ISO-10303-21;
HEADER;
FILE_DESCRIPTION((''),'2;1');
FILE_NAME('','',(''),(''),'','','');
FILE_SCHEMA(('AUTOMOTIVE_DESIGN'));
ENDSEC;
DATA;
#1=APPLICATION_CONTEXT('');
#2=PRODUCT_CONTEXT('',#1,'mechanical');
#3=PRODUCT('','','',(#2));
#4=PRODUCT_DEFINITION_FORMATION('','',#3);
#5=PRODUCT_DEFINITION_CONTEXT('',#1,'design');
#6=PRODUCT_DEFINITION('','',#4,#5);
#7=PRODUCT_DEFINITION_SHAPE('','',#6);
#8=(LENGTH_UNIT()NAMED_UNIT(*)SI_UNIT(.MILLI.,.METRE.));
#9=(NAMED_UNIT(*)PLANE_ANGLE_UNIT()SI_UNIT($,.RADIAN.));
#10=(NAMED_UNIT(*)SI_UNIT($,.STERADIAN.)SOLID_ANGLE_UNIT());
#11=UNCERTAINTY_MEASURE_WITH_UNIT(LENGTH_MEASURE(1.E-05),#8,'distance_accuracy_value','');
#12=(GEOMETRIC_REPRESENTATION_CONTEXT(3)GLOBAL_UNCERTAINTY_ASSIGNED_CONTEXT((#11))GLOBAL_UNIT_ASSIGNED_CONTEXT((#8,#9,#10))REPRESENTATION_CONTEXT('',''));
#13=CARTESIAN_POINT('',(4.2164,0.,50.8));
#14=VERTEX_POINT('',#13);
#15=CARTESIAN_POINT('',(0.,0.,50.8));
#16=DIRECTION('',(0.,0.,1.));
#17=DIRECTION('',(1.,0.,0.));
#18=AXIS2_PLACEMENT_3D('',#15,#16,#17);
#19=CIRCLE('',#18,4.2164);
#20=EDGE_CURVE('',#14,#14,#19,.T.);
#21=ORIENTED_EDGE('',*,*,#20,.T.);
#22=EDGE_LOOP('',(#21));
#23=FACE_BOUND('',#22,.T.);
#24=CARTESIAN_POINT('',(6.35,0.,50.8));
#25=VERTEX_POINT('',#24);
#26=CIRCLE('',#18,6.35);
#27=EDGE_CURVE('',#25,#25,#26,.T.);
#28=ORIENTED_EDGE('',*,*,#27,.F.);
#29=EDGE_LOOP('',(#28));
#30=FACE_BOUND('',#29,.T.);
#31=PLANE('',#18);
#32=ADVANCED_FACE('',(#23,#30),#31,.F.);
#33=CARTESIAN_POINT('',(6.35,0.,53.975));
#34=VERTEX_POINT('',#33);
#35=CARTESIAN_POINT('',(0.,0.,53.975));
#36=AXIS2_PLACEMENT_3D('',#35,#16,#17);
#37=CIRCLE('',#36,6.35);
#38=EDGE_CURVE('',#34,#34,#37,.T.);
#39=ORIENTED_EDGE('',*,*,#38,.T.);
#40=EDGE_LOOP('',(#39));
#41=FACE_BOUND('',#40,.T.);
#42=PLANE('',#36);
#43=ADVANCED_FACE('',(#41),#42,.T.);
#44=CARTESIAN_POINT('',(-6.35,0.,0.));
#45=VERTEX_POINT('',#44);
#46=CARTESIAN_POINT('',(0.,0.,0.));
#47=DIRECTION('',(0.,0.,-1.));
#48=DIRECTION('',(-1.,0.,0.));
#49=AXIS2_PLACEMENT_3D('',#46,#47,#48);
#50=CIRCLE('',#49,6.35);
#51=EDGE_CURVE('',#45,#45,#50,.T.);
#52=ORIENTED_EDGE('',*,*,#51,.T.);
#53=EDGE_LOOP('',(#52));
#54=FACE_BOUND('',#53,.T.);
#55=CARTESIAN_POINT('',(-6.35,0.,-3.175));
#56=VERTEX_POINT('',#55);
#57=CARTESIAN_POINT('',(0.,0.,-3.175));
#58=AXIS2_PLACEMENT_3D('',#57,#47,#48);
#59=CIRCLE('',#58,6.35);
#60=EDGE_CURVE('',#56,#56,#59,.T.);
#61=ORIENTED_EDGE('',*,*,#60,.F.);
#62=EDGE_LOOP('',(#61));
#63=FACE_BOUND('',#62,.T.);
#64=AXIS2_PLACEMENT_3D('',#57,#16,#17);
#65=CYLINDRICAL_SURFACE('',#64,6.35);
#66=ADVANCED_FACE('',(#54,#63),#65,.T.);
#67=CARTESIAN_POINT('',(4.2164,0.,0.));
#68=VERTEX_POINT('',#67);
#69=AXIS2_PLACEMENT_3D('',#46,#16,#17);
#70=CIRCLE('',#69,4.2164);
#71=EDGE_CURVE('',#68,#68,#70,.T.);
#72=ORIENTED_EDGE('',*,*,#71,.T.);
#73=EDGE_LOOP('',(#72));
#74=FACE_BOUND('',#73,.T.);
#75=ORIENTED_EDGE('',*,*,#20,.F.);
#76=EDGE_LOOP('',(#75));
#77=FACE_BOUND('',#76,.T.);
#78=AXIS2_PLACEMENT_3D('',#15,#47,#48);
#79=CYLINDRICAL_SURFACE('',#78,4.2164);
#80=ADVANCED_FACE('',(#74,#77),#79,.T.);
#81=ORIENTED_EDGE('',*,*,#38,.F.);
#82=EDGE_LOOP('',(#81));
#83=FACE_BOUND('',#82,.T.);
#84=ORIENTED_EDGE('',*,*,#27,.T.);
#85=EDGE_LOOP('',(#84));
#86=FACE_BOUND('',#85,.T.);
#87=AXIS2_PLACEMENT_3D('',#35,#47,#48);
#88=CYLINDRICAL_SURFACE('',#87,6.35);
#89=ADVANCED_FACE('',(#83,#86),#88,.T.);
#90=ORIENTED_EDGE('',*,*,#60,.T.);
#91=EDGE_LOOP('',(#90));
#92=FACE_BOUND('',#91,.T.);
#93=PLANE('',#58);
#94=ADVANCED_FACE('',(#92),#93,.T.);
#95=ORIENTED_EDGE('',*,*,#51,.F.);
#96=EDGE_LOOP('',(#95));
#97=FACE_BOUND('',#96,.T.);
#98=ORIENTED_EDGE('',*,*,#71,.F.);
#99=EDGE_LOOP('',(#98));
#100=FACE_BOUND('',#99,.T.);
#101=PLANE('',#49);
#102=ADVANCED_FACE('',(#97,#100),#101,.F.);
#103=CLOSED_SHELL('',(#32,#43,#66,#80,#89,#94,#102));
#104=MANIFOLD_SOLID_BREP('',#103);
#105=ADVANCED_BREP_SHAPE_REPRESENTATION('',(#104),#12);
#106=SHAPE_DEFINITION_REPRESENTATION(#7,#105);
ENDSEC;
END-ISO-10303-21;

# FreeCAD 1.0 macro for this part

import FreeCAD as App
import Part
import Sketcher
from FreeCAD import Vector
Q = App.Units.Quantity

doc = App.newDocument("Part")
body = doc.addObject("PartDesign::Body", "Body")

sketch1 = body.newObject("Sketcher::SketchObject", "Sketch")
sketch1.AttachmentSupport = (doc.getObject("XY_Plane"), [""])
sketch1.MapMode = "FlatFace"
sketch1.addGeometry(Part.Circle(Vector(0, 0, 0), Vector(0, 0, 1), 4.2), False)
sketch1.addConstraint(Sketcher.Constraint("Coincident", 0, 3, -1, 1))
sketch1.addConstraint(Sketcher.Constraint("Diameter", 0, Q("0.332 in")))
pad1 = body.newObject("PartDesign::Pad", "Pad")
pad1.Profile = sketch1
pad1.Length = Q("2 in")

sketch2 = body.newObject("Sketcher::SketchObject", "Sketch001")
sketch2.AttachmentSupport = (doc.getObject("XY_Plane"), [""])
sketch2.MapMode = "FlatFace"
sketch2.AttachmentOffset = App.Placement(Vector(0, 0, 2 * 25.4), App.Rotation())
sketch2.addGeometry(Part.Circle(Vector(0, 0, 0), Vector(0, 0, 1), 6), False)
sketch2.addConstraint(Sketcher.Constraint("Coincident", 0, 3, -1, 1))
sketch2.addConstraint(Sketcher.Constraint("Diameter", 0, Q("0.5 in")))
pad2 = body.newObject("PartDesign::Pad", "Pad001")
pad2.Profile = sketch2
pad2.Length = Q("0.125 in")

sketch3 = body.newObject("Sketcher::SketchObject", "Sketch002")
sketch3.AttachmentSupport = (doc.getObject("XY_Plane"), [""])
sketch3.MapMode = "FlatFace"
sketch3.AttachmentOffset = App.Placement(Vector(0, 0, -0.125 * 25.4), App.Rotation())
sketch3.addGeometry(Part.Circle(Vector(0, 0, 0), Vector(0, 0, 1), 6), False)
sketch3.addConstraint(Sketcher.Constraint("Coincident", 0, 3, -1, 1))
sketch3.addConstraint(Sketcher.Constraint("Diameter", 0, Q("0.5 in")))
pad3 = body.newObject("PartDesign::Pad", "Pad002")
pad3.Profile = sketch3
pad3.Length = Q("0.125 in")

doc.recompute()
